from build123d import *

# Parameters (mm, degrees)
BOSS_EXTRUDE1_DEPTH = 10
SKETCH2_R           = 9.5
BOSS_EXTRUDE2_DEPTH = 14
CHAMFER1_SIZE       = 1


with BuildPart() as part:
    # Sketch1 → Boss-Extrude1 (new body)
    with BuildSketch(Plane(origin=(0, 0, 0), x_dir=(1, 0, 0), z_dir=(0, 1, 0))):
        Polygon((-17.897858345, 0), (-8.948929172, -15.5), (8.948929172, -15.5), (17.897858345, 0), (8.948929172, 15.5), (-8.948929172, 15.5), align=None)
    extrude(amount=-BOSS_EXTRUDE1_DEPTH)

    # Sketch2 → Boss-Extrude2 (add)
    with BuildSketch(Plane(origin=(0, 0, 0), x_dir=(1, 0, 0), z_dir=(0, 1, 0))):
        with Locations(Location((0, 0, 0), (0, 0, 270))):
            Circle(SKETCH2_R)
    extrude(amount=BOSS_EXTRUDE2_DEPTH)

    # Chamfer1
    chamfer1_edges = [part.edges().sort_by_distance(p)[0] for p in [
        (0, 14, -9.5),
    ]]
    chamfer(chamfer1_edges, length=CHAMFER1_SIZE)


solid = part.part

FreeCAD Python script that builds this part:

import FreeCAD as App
import Part
import Sketcher

V = App.Vector
Q = App.Units.Quantity


def edges_at(feature, points):
    """Names of the edges that pass closest to the given points."""
    edges = feature.Shape.Edges
    near = lambda p: min(range(len(edges)), key=lambda i: edges[i].distToShape(Part.Vertex(*p))[0])
    return sorted({f"Edge{near(p) + 1}" for p in points})


def add_polygon(sketch, points):
    """Adds a closed chain of lines whose ends are joined by coincident constraints."""
    first, n = sketch.GeometryCount, len(points)
    for a, b in zip(points, points[1:] + points[:1]):
        sketch.addGeometry(Part.LineSegment(App.Vector(*a, 0), App.Vector(*b, 0)), False)
    for i in range(n):
        sketch.addConstraint(Sketcher.Constraint("Coincident", first + i, 2, first + (i + 1) % n, 1))

doc = App.newDocument("Part")
body = doc.addObject("PartDesign::Body", "Body")

# Sketch on XZ plane
sketch1 = body.newObject("Sketcher::SketchObject", "Sketch")
sketch1.AttachmentSupport = (doc.getObject("XZ_Plane"), [""])
sketch1.MapMode = "FlatFace"
add_polygon(sketch1, [(-18, 0), (-9, 16), (9, 16), (18, 0), (9, -16), (-9, -16)])  # lines 0-5
sketch1.addConstraint(Sketcher.Constraint("Horizontal", 1))
sketch1.addConstraint(Sketcher.Constraint("Horizontal", 4))
sketch1.addConstraint(Sketcher.Constraint("Symmetric", 0, 2, 3, 2, -1, 1))
sketch1.addConstraint(Sketcher.Constraint("Symmetric", 2, 2, 5, 2, -1, 1))
sketch1.addConstraint(Sketcher.Constraint("PointOnObject", 2, 2, -1))
sketch1.addConstraint(Sketcher.Constraint("Parallel", 2, 5))
sketch1.addConstraint(Sketcher.Constraint("Vertical", 1, 2, 3, 2))
sketch1.addConstraint(Sketcher.Constraint("Angle", 0, Q("60 deg")))
sketch1.addConstraint(Sketcher.Constraint("DistanceY", 3, 2, 1, 2, Q("31 mm")))
sketch1.addConstraint(Sketcher.Constraint("DistanceX", 1, 1, 1, 2, Q("17.897858 mm")))
pad1 = body.newObject("PartDesign::Pad", "Pad")
pad1.Profile = sketch1
pad1.Length = 10

# Sketch on XZ plane
sketch2 = body.newObject("Sketcher::SketchObject", "Sketch001")
sketch2.AttachmentSupport = (doc.getObject("XZ_Plane"), [""])
sketch2.MapMode = "FlatFace"
sketch2.addGeometry(Part.Circle(V(0, 0, 0), V(0, 0, 1), 10), False)
sketch2.addConstraint(Sketcher.Constraint("Coincident", 0, 3, -1, 1))
sketch2.addConstraint(Sketcher.Constraint("Diameter", 0, Q("19 mm")))
pad2 = body.newObject("PartDesign::Pad", "Pad001")
pad2.Profile = sketch2
pad2.Length = 14
pad2.Reversed = True
doc.recompute()

chamfer = body.newObject("PartDesign::Chamfer", "Chamfer")
chamfer.Base = (pad2, edges_at(pad2, [(0, 14, -9.5)]))
chamfer.Size = 1

doc.recompute()
